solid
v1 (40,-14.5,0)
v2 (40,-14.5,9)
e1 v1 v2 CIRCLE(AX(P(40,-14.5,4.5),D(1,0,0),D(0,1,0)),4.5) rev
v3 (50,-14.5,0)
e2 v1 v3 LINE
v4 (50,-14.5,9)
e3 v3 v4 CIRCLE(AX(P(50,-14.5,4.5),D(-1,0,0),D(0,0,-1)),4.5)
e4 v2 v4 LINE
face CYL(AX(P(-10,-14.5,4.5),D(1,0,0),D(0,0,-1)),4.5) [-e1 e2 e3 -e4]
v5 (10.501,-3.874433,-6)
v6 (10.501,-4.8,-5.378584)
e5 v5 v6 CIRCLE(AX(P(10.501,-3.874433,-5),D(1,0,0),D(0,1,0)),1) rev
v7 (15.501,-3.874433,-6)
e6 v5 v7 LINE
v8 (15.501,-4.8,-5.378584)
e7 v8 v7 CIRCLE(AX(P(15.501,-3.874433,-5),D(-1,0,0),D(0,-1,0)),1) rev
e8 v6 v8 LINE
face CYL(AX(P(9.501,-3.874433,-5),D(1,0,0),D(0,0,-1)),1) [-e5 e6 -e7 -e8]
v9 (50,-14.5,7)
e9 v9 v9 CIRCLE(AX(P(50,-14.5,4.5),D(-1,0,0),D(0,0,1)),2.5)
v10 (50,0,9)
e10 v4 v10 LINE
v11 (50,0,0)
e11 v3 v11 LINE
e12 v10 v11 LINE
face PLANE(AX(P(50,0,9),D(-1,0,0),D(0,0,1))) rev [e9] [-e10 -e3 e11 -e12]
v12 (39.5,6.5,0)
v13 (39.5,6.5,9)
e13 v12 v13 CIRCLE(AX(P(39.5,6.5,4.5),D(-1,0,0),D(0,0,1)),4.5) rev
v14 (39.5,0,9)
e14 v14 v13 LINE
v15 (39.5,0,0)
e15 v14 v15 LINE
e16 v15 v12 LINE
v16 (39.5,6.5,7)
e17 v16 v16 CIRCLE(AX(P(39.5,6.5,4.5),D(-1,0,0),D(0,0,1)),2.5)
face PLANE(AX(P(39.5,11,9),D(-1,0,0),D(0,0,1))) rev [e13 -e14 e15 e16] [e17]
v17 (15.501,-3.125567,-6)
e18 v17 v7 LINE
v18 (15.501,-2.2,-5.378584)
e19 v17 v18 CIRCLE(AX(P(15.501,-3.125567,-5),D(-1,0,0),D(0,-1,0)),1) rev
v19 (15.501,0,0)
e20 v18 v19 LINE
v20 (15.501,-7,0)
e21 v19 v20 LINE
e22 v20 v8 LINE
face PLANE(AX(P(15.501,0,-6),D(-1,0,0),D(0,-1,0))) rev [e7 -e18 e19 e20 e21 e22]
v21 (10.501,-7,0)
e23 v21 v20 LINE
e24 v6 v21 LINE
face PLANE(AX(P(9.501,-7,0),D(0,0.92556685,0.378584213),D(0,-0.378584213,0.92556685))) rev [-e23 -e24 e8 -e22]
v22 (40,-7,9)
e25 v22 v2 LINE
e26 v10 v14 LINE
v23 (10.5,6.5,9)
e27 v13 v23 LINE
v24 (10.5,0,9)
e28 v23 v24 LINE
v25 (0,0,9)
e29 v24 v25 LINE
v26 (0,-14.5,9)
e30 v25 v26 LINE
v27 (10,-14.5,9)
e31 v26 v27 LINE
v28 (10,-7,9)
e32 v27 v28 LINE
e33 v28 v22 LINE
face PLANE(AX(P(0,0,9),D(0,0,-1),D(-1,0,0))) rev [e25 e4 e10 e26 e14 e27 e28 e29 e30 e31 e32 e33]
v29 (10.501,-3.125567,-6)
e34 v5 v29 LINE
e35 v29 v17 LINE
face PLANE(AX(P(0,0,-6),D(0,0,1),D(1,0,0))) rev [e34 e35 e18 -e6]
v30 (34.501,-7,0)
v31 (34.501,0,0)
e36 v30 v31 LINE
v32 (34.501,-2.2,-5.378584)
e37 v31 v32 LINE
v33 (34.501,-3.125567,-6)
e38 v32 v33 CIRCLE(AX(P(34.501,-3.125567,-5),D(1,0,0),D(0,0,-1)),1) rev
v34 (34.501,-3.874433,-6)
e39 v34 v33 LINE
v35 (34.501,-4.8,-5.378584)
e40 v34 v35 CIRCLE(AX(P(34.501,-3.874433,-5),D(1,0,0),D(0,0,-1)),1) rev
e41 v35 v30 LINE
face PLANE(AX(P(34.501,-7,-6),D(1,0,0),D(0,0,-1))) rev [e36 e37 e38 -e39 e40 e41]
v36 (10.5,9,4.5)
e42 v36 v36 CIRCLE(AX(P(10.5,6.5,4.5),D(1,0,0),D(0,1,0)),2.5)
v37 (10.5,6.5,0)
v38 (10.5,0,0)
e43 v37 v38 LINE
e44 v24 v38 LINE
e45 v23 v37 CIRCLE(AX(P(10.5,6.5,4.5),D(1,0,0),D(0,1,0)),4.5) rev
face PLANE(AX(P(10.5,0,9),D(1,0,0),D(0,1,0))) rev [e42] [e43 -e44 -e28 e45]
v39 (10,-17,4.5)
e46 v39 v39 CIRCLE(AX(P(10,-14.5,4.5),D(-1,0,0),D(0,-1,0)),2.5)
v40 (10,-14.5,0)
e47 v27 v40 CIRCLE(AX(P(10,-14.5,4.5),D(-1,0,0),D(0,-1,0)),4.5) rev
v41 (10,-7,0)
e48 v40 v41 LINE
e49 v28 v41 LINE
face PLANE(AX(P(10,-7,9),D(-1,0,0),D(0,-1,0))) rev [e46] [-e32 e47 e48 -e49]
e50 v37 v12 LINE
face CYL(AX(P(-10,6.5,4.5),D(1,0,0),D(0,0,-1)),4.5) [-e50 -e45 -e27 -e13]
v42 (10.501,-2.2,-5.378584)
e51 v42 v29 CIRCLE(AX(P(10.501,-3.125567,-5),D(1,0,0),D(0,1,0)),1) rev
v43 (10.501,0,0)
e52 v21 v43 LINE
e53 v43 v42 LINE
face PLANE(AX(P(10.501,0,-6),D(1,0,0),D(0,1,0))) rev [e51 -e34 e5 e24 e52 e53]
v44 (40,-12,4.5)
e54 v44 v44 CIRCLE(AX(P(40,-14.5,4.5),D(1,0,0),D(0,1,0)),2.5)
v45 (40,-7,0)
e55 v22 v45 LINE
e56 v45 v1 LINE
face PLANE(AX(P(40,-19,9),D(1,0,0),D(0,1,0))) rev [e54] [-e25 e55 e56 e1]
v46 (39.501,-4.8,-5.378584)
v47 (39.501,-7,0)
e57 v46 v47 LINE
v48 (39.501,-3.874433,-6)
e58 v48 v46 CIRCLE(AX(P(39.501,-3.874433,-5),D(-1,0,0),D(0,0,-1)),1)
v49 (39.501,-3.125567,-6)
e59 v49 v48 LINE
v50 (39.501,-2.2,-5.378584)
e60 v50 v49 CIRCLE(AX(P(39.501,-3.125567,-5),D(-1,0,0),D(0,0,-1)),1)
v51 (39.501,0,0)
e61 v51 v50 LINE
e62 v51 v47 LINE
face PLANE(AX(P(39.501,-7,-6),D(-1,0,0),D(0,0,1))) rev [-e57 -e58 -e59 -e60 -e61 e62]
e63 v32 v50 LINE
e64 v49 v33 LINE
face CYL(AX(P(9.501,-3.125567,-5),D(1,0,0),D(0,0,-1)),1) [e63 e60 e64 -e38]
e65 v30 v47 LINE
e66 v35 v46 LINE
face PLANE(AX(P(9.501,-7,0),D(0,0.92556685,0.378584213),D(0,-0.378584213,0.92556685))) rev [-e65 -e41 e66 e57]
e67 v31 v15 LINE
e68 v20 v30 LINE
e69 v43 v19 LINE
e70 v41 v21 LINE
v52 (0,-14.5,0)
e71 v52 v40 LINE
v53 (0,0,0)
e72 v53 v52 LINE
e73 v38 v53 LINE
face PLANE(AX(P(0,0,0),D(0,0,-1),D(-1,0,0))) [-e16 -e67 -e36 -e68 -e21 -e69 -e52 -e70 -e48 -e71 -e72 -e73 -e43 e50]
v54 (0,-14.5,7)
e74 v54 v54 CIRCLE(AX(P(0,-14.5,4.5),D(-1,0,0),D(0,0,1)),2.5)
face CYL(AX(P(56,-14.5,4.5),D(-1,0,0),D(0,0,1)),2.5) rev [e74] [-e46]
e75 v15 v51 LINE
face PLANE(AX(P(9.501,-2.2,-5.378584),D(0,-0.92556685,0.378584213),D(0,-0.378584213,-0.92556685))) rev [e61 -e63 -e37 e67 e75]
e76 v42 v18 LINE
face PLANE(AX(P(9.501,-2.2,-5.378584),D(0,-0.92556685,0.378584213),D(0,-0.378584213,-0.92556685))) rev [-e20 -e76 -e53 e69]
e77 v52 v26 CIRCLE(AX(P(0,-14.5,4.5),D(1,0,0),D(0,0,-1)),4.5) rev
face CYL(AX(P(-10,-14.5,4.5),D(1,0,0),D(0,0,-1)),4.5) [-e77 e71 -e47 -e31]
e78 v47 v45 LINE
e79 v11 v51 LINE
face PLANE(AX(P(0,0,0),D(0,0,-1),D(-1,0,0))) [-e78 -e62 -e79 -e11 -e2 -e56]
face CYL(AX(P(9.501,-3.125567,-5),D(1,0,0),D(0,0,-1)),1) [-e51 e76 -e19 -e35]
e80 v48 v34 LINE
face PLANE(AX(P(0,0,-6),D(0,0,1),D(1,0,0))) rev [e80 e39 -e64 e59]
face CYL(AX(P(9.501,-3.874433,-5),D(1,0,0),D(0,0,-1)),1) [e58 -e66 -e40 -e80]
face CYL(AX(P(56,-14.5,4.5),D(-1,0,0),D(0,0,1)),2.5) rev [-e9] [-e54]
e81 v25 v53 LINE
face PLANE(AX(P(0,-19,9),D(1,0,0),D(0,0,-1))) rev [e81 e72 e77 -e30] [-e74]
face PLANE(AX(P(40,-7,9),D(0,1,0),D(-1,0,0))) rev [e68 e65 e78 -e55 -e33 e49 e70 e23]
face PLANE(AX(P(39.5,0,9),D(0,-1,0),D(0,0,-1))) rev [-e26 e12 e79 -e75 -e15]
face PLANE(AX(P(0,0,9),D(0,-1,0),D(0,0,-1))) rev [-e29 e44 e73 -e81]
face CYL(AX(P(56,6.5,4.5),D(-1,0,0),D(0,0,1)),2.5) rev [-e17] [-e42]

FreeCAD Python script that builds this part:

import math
import FreeCAD as App
import Part
import Sketcher
Q = App.Units.Quantity

doc = App.newDocument("Part")
body = doc.addObject("PartDesign::Body", "Body")

sketch1 = body.newObject("Sketcher::SketchObject", "Sketch")
sketch1.AttachmentSupport = (doc.getObject("XY_Plane"), [""])
sketch1.MapMode = "FlatFace"
sketch1.addGeometry([
    Part.LineSegment(App.Vector(10, 0, 0), App.Vector(0, 0, 0)),
    Part.LineSegment(App.Vector(0, 0, 0), App.Vector(0, -19, 0)),
    Part.LineSegment(App.Vector(0, -19, 0), App.Vector(10, -19, 0)),
    Part.LineSegment(App.Vector(10, -19, 0), App.Vector(10, -7, 0)),
    Part.LineSegment(App.Vector(10, -7, 0), App.Vector(40, -7, 0)),
    Part.LineSegment(App.Vector(40, -7, 0), App.Vector(40, -19, 0)),
    Part.LineSegment(App.Vector(40, -19, 0), App.Vector(50, -19, 0)),
    Part.LineSegment(App.Vector(50, -19, 0), App.Vector(50, 0, 0)),
    Part.LineSegment(App.Vector(50, 0, 0), App.Vector(40, 0, 0)),
    Part.LineSegment(App.Vector(40, 0, 0), App.Vector(40, 11, 0)),
    Part.LineSegment(App.Vector(40, 11, 0), App.Vector(10, 11, 0)),
    Part.LineSegment(App.Vector(10, 11, 0), App.Vector(10, 0, 0)),
], False)
sketch1.addConstraint([
    Sketcher.Constraint("Coincident", 0, 2, 1, 1),
    Sketcher.Constraint("Coincident", 1, 2, 2, 1),
    Sketcher.Constraint("Coincident", 2, 2, 3, 1),
    Sketcher.Constraint("Coincident", 3, 2, 4, 1),
    Sketcher.Constraint("Coincident", 4, 2, 5, 1),
    Sketcher.Constraint("Coincident", 5, 2, 6, 1),
    Sketcher.Constraint("Coincident", 6, 2, 7, 1),
    Sketcher.Constraint("Coincident", 7, 2, 8, 1),
    Sketcher.Constraint("Coincident", 8, 2, 9, 1),
    Sketcher.Constraint("Coincident", 9, 2, 10, 1),
    Sketcher.Constraint("Coincident", 10, 2, 11, 1),
    Sketcher.Constraint("Coincident", 11, 2, 0, 1),
    Sketcher.Constraint("Horizontal", 0),
    Sketcher.Constraint("Vertical", 1),
    Sketcher.Constraint("Horizontal", 2),
    Sketcher.Constraint("Vertical", 3),
    Sketcher.Constraint("Horizontal", 4),
    Sketcher.Constraint("Vertical", 5),
    Sketcher.Constraint("Horizontal", 6),
    Sketcher.Constraint("Vertical", 7),
    Sketcher.Constraint("Horizontal", 8),
    Sketcher.Constraint("Vertical", 9),
    Sketcher.Constraint("Horizontal", 10),
    Sketcher.Constraint("Vertical", 11),
    Sketcher.Constraint("Coincident", 0, 2, -1, 1),
    Sketcher.Constraint("PointOnObject", 7, 2, -1),
    Sketcher.Constraint("Horizontal", 2, 2, 5, 2),
    Sketcher.Constraint("Equal", 2, 6),
    Sketcher.Constraint("Equal", 0, 8),
    Sketcher.Constraint("DistanceX", 2, 1, 2, 2, Q("10 mm")),
    Sketcher.Constraint("DistanceX", 4, 1, 4, 2, Q("30 mm")),
    Sketcher.Constraint("DistanceX", 10, 2, 10, 1, Q("29 mm")),
    Sketcher.Constraint("DistanceY", 1, 2, 1, 1, Q("19 mm")),
    Sketcher.Constraint("DistanceY", 3, 1, 3, 2, Q("12 mm")),
    Sketcher.Constraint("DistanceY", 9, 1, 9, 2, Q("11 mm")),
])
pad1 = body.newObject("PartDesign::Pad", "Pad")
pad1.Profile = sketch1
pad1.Length = 9

sketch2 = body.newObject("Sketcher::SketchObject", "Sketch001")
sketch2.AttachmentSupport = (doc.getObject("YZ_Plane"), [""])
sketch2.MapMode = "FlatFace"
sketch2.addGeometry([
    Part.Circle(App.Vector(-14.5, 4.5, 0), App.Vector(0, 0, 1), 2.5),
    Part.Circle(App.Vector(6.5, 4.5, 0), App.Vector(0, 0, 1), 2.5),
], False)
sketch2.addConstraint([
    Sketcher.Constraint("Equal", 0, 1),
    Sketcher.Constraint("Horizontal", 0, 3, 1, 3),
    Sketcher.Constraint("Diameter", 0, Q("5 mm")),
    Sketcher.Constraint("DistanceX", 0, 3, 1, 3, Q("21 mm")),
    Sketcher.Constraint("DistanceX", 0, 3, -1, 1, Q("14.5 mm")),
    Sketcher.Constraint("DistanceY", -1, 1, 0, 3, Q("4.5 mm")),
])
pocket1 = body.newObject("PartDesign::Pocket", "Pocket")
pocket1.Profile = sketch2
pocket1.Length = 56
pocket1.Reversed = True

sketch3 = body.newObject("Sketcher::SketchObject", "Sketch002")
sketch3.AttachmentSupport = (doc.getObject("XY_Plane"), [""])
sketch3.MapMode = "FlatFace"
sketch3.addGeometry([
    Part.LineSegment(App.Vector(16, 0, 0), App.Vector(16, -7, 0)),
    Part.LineSegment(App.Vector(16, -7, 0), App.Vector(11, -7, 0)),
    Part.LineSegment(App.Vector(11, -7, 0), App.Vector(11, 0, 0)),
    Part.LineSegment(App.Vector(11, 0, 0), App.Vector(16, 0, 0)),
    Part.LineSegment(App.Vector(40, 0, 0), App.Vector(40, -7, 0)),
    Part.LineSegment(App.Vector(40, -7, 0), App.Vector(35, -7, 0)),
    Part.LineSegment(App.Vector(35, -7, 0), App.Vector(35, 0, 0)),
    Part.LineSegment(App.Vector(35, 0, 0), App.Vector(40, 0, 0)),
], False)
sketch3.addConstraint([
    Sketcher.Constraint("Coincident", 0, 2, 1, 1),
    Sketcher.Constraint("Coincident", 1, 2, 2, 1),
    Sketcher.Constraint("Coincident", 2, 2, 3, 1),
    Sketcher.Constraint("Coincident", 3, 2, 0, 1),
    Sketcher.Constraint("Coincident", 4, 2, 5, 1),
    Sketcher.Constraint("Coincident", 5, 2, 6, 1),
    Sketcher.Constraint("Coincident", 6, 2, 7, 1),
    Sketcher.Constraint("Coincident", 7, 2, 4, 1),
    Sketcher.Constraint("Vertical", 0),
    Sketcher.Constraint("Horizontal", 1),
    Sketcher.Constraint("Vertical", 2),
    Sketcher.Constraint("Horizontal", 3),
    Sketcher.Constraint("Vertical", 4),
    Sketcher.Constraint("Horizontal", 5),
    Sketcher.Constraint("Vertical", 6),
    Sketcher.Constraint("Horizontal", 7),
    Sketcher.Constraint("PointOnObject", 2, 2, -1),
    Sketcher.Constraint("PointOnObject", 6, 2, -1),
    Sketcher.Constraint("Horizontal", 1, 2, 4, 2),
    Sketcher.Constraint("Equal", 3, 5),
    Sketcher.Constraint("DistanceX", 1, 2, 1, 1, Q("5 mm")),
    Sketcher.Constraint("DistanceY", 0, 2, 0, 1, Q("7 mm")),
    Sketcher.Constraint("DistanceX", 0, 2, 4, 2, Q("24 mm")),
    Sketcher.Constraint("DistanceX", -1, 1, 0, 2, Q("15.501 mm")),
])
pad2 = body.newObject("PartDesign::Pad", "Pad001")
pad2.Profile = sketch3
pad2.Length = 6
pad2.Reversed = True

sketch4 = body.newObject("Sketcher::SketchObject", "Sketch003")
sketch4.AttachmentSupport = (doc.getObject("YZ_Plane"), [""])
sketch4.MapMode = "FlatFace"
sketch4.AttachmentOffset = App.Placement(App.Vector(0, 0, 39.501), App.Rotation())
sketch4.addGeometry([
    Part.LineSegment(App.Vector(-4.8, -5.4, 0), App.Vector(-7, 0, 0)),
    Part.LineSegment(App.Vector(-7, 0, 0), App.Vector(-8.4, 0, 0)),
    Part.LineSegment(App.Vector(-8.4, 0, 0), App.Vector(-8.4, -7.4, 0)),
    Part.LineSegment(App.Vector(-8.4, -7.4, 0), App.Vector(0.7, -7.4, 0)),
    Part.LineSegment(App.Vector(0.7, -7.4, 0), App.Vector(0.7, 0, 0)),
    Part.LineSegment(App.Vector(0.7, 0, 0), App.Vector(0, 0, 0)),
    Part.LineSegment(App.Vector(0, 0, 0), App.Vector(-2.2, -5.4, 0)),
    Part.ArcOfCircle(Part.Circle(App.Vector(-3.1, -5, 0), App.Vector(0, 0, 1), 1), math.radians(-90), math.radians(-22)),
    Part.LineSegment(App.Vector(-3.1, -6, 0), App.Vector(-3.9, -6, 0)),
    Part.ArcOfCircle(Part.Circle(App.Vector(-3.9, -5, 0), App.Vector(0, 0, 1), 1), math.radians(-158), math.radians(-90)),
], False)
sketch4.addConstraint([
    Sketcher.Constraint("Coincident", 0, 2, 1, 1),
    Sketcher.Constraint("Coincident", 1, 2, 2, 1),
    Sketcher.Constraint("Coincident", 2, 2, 3, 1),
    Sketcher.Constraint("Coincident", 3, 2, 4, 1),
    Sketcher.Constraint("Coincident", 4, 2, 5, 1),
    Sketcher.Constraint("Coincident", 5, 2, 6, 1),
    Sketcher.Constraint("Tangent", 6, 2, 7, 2),
    Sketcher.Constraint("Tangent", 7, 1, 8, 1),
    Sketcher.Constraint("Tangent", 8, 2, 9, 2),
    Sketcher.Constraint("Tangent", 9, 1, 0, 1),
    Sketcher.Constraint("Horizontal", 1),
    Sketcher.Constraint("Vertical", 2),
    Sketcher.Constraint("Horizontal", 3),
    Sketcher.Constraint("Vertical", 4),
    Sketcher.Constraint("Horizontal", 5),
    Sketcher.Constraint("Horizontal", 8),
    Sketcher.Constraint("Coincident", 5, 2, -1, 1),
    Sketcher.Constraint("Equal", 7, 9),
    Sketcher.Constraint("PointOnObject", 0, 2, -1),
    Sketcher.Constraint("Horizontal", 6, 2, 9, 1),
    Sketcher.Constraint("Radius", 7, Q("1 mm")),
    Sketcher.Constraint("DistanceY", 7, 3, -1, 1, Q("5 mm")),
    Sketcher.Constraint("DistanceX", 0, 2, -1, 1, Q("7 mm")),
    Sketcher.Constraint("DistanceX", 6, 2, -1, 1, Q("2.2 mm")),
    Sketcher.Constraint("DistanceX", 1, 2, 1, 1, Q("1.433389 mm")),
    Sketcher.Constraint("DistanceX", 3, 1, 3, 2, Q("9.144445 mm")),
    Sketcher.Constraint("DistanceY", 2, 2, 2, 1, Q("7.382707 mm")),
])
pocket2 = body.newObject("PartDesign::Pocket", "Pocket001")
pocket2.Profile = sketch4
pocket2.Length = 30

sketch5 = body.newObject("Sketcher::SketchObject", "Sketch004")
sketch5.AttachmentSupport = (doc.getObject("YZ_Plane"), [""])
sketch5.MapMode = "FlatFace"
sketch5.AttachmentOffset = App.Placement(App.Vector(0, 0, 50), App.Rotation())
sketch5.addGeometry([
    Part.LineSegment(App.Vector(6.5, 0, 0), App.Vector(6.5, -1.7, 0)),
    Part.LineSegment(App.Vector(6.5, -1.7, 0), App.Vector(12.3, -1.7, 0)),
    Part.LineSegment(App.Vector(12.3, -1.7, 0), App.Vector(12.3, 10.5, 0)),
    Part.LineSegment(App.Vector(12.3, 10.5, 0), App.Vector(4.7, 10.5, 0)),
    Part.LineSegment(App.Vector(4.7, 10.5, 0), App.Vector(6.5, 9, 0)),
    Part.ArcOfCircle(Part.Circle(App.Vector(6.5, 4.5, 0), App.Vector(0, 0, 1), 4.5), math.radians(-90), math.radians(90)),
    Part.LineSegment(App.Vector(-14.5, -1.2, 0), App.Vector(-14.5, 0, 0)),
    Part.ArcOfCircle(Part.Circle(App.Vector(-14.5, 4.5, 0), App.Vector(0, 0, 1), 4.5), math.radians(90), math.radians(270)),
    Part.LineSegment(App.Vector(-14.5, 9, 0), App.Vector(-14.5, 10.5, 0)),
    Part.LineSegment(App.Vector(-14.5, 10.5, 0), App.Vector(-21.1, 10.5, 0)),
    Part.LineSegment(App.Vector(-21.1, 10.5, 0), App.Vector(-21.1, -1.2, 0)),
    Part.LineSegment(App.Vector(-21.1, -1.2, 0), App.Vector(-14.5, -1.2, 0)),
], False)
sketch5.addConstraint([
    Sketcher.Constraint("Coincident", 0, 2, 1, 1),
    Sketcher.Constraint("Coincident", 1, 2, 2, 1),
    Sketcher.Constraint("Coincident", 2, 2, 3, 1),
    Sketcher.Constraint("Coincident", 3, 2, 4, 1),
    Sketcher.Constraint("Coincident", 4, 2, 5, 2),
    Sketcher.Constraint("Coincident", 5, 1, 0, 1),
    Sketcher.Constraint("Coincident", 6, 2, 7, 2),
    Sketcher.Constraint("Coincident", 7, 1, 8, 1),
    Sketcher.Constraint("Coincident", 8, 2, 9, 1),
    Sketcher.Constraint("Coincident", 9, 2, 10, 1),
    Sketcher.Constraint("Coincident", 10, 2, 11, 1),
    Sketcher.Constraint("Coincident", 11, 2, 6, 1),
    Sketcher.Constraint("Vertical", 0),
    Sketcher.Constraint("Horizontal", 1),
    Sketcher.Constraint("Vertical", 2),
    Sketcher.Constraint("Horizontal", 3),
    Sketcher.Constraint("Vertical", 6),
    Sketcher.Constraint("Vertical", 8),
    Sketcher.Constraint("Horizontal", 9),
    Sketcher.Constraint("Vertical", 10),
    Sketcher.Constraint("Horizontal", 11),
    Sketcher.Constraint("Equal", 5, 7),
    Sketcher.Constraint("PointOnObject", 5, 1, -1),
    Sketcher.Constraint("PointOnObject", 6, 2, -1),
    Sketcher.Constraint("Horizontal", 3, 2, 8, 2),
    Sketcher.Constraint("Vertical", 5, 3, 0, 2),
    Sketcher.Constraint("Vertical", 0, 2, 4, 2),
    Sketcher.Constraint("Vertical", 7, 3, 6, 2),
    Sketcher.Constraint("Vertical", 6, 2, 7, 1),
    Sketcher.Constraint("Radius", 5, Q("4.5 mm")),
    Sketcher.Constraint("DistanceX", 7, 3, 5, 3, Q("21 mm")),
    Sketcher.Constraint("DistanceX", -1, 1, 5, 3, Q("6.5 mm")),
    Sketcher.Constraint("DistanceX", 1, 1, 1, 2, Q("5.813739 mm")),
    Sketcher.Constraint("DistanceX", 9, 2, 9, 1, Q("6.622338 mm")),
    Sketcher.Constraint("DistanceY", 0, 2, 0, 1, Q("1.728311 mm")),
    Sketcher.Constraint("DistanceY", 6, 1, 6, 2, Q("1.228691 mm")),
    Sketcher.Constraint("DistanceY", 8, 1, 8, 2, Q("1.493152 mm")),
    Sketcher.Constraint("DistanceX", 3, 2, 3, 1, Q("7.571158 mm")),
])
pocket3 = body.newObject("PartDesign::Pocket", "Pocket002")
pocket3.Profile = sketch5
pocket3.Length = 60

doc.recompute()
